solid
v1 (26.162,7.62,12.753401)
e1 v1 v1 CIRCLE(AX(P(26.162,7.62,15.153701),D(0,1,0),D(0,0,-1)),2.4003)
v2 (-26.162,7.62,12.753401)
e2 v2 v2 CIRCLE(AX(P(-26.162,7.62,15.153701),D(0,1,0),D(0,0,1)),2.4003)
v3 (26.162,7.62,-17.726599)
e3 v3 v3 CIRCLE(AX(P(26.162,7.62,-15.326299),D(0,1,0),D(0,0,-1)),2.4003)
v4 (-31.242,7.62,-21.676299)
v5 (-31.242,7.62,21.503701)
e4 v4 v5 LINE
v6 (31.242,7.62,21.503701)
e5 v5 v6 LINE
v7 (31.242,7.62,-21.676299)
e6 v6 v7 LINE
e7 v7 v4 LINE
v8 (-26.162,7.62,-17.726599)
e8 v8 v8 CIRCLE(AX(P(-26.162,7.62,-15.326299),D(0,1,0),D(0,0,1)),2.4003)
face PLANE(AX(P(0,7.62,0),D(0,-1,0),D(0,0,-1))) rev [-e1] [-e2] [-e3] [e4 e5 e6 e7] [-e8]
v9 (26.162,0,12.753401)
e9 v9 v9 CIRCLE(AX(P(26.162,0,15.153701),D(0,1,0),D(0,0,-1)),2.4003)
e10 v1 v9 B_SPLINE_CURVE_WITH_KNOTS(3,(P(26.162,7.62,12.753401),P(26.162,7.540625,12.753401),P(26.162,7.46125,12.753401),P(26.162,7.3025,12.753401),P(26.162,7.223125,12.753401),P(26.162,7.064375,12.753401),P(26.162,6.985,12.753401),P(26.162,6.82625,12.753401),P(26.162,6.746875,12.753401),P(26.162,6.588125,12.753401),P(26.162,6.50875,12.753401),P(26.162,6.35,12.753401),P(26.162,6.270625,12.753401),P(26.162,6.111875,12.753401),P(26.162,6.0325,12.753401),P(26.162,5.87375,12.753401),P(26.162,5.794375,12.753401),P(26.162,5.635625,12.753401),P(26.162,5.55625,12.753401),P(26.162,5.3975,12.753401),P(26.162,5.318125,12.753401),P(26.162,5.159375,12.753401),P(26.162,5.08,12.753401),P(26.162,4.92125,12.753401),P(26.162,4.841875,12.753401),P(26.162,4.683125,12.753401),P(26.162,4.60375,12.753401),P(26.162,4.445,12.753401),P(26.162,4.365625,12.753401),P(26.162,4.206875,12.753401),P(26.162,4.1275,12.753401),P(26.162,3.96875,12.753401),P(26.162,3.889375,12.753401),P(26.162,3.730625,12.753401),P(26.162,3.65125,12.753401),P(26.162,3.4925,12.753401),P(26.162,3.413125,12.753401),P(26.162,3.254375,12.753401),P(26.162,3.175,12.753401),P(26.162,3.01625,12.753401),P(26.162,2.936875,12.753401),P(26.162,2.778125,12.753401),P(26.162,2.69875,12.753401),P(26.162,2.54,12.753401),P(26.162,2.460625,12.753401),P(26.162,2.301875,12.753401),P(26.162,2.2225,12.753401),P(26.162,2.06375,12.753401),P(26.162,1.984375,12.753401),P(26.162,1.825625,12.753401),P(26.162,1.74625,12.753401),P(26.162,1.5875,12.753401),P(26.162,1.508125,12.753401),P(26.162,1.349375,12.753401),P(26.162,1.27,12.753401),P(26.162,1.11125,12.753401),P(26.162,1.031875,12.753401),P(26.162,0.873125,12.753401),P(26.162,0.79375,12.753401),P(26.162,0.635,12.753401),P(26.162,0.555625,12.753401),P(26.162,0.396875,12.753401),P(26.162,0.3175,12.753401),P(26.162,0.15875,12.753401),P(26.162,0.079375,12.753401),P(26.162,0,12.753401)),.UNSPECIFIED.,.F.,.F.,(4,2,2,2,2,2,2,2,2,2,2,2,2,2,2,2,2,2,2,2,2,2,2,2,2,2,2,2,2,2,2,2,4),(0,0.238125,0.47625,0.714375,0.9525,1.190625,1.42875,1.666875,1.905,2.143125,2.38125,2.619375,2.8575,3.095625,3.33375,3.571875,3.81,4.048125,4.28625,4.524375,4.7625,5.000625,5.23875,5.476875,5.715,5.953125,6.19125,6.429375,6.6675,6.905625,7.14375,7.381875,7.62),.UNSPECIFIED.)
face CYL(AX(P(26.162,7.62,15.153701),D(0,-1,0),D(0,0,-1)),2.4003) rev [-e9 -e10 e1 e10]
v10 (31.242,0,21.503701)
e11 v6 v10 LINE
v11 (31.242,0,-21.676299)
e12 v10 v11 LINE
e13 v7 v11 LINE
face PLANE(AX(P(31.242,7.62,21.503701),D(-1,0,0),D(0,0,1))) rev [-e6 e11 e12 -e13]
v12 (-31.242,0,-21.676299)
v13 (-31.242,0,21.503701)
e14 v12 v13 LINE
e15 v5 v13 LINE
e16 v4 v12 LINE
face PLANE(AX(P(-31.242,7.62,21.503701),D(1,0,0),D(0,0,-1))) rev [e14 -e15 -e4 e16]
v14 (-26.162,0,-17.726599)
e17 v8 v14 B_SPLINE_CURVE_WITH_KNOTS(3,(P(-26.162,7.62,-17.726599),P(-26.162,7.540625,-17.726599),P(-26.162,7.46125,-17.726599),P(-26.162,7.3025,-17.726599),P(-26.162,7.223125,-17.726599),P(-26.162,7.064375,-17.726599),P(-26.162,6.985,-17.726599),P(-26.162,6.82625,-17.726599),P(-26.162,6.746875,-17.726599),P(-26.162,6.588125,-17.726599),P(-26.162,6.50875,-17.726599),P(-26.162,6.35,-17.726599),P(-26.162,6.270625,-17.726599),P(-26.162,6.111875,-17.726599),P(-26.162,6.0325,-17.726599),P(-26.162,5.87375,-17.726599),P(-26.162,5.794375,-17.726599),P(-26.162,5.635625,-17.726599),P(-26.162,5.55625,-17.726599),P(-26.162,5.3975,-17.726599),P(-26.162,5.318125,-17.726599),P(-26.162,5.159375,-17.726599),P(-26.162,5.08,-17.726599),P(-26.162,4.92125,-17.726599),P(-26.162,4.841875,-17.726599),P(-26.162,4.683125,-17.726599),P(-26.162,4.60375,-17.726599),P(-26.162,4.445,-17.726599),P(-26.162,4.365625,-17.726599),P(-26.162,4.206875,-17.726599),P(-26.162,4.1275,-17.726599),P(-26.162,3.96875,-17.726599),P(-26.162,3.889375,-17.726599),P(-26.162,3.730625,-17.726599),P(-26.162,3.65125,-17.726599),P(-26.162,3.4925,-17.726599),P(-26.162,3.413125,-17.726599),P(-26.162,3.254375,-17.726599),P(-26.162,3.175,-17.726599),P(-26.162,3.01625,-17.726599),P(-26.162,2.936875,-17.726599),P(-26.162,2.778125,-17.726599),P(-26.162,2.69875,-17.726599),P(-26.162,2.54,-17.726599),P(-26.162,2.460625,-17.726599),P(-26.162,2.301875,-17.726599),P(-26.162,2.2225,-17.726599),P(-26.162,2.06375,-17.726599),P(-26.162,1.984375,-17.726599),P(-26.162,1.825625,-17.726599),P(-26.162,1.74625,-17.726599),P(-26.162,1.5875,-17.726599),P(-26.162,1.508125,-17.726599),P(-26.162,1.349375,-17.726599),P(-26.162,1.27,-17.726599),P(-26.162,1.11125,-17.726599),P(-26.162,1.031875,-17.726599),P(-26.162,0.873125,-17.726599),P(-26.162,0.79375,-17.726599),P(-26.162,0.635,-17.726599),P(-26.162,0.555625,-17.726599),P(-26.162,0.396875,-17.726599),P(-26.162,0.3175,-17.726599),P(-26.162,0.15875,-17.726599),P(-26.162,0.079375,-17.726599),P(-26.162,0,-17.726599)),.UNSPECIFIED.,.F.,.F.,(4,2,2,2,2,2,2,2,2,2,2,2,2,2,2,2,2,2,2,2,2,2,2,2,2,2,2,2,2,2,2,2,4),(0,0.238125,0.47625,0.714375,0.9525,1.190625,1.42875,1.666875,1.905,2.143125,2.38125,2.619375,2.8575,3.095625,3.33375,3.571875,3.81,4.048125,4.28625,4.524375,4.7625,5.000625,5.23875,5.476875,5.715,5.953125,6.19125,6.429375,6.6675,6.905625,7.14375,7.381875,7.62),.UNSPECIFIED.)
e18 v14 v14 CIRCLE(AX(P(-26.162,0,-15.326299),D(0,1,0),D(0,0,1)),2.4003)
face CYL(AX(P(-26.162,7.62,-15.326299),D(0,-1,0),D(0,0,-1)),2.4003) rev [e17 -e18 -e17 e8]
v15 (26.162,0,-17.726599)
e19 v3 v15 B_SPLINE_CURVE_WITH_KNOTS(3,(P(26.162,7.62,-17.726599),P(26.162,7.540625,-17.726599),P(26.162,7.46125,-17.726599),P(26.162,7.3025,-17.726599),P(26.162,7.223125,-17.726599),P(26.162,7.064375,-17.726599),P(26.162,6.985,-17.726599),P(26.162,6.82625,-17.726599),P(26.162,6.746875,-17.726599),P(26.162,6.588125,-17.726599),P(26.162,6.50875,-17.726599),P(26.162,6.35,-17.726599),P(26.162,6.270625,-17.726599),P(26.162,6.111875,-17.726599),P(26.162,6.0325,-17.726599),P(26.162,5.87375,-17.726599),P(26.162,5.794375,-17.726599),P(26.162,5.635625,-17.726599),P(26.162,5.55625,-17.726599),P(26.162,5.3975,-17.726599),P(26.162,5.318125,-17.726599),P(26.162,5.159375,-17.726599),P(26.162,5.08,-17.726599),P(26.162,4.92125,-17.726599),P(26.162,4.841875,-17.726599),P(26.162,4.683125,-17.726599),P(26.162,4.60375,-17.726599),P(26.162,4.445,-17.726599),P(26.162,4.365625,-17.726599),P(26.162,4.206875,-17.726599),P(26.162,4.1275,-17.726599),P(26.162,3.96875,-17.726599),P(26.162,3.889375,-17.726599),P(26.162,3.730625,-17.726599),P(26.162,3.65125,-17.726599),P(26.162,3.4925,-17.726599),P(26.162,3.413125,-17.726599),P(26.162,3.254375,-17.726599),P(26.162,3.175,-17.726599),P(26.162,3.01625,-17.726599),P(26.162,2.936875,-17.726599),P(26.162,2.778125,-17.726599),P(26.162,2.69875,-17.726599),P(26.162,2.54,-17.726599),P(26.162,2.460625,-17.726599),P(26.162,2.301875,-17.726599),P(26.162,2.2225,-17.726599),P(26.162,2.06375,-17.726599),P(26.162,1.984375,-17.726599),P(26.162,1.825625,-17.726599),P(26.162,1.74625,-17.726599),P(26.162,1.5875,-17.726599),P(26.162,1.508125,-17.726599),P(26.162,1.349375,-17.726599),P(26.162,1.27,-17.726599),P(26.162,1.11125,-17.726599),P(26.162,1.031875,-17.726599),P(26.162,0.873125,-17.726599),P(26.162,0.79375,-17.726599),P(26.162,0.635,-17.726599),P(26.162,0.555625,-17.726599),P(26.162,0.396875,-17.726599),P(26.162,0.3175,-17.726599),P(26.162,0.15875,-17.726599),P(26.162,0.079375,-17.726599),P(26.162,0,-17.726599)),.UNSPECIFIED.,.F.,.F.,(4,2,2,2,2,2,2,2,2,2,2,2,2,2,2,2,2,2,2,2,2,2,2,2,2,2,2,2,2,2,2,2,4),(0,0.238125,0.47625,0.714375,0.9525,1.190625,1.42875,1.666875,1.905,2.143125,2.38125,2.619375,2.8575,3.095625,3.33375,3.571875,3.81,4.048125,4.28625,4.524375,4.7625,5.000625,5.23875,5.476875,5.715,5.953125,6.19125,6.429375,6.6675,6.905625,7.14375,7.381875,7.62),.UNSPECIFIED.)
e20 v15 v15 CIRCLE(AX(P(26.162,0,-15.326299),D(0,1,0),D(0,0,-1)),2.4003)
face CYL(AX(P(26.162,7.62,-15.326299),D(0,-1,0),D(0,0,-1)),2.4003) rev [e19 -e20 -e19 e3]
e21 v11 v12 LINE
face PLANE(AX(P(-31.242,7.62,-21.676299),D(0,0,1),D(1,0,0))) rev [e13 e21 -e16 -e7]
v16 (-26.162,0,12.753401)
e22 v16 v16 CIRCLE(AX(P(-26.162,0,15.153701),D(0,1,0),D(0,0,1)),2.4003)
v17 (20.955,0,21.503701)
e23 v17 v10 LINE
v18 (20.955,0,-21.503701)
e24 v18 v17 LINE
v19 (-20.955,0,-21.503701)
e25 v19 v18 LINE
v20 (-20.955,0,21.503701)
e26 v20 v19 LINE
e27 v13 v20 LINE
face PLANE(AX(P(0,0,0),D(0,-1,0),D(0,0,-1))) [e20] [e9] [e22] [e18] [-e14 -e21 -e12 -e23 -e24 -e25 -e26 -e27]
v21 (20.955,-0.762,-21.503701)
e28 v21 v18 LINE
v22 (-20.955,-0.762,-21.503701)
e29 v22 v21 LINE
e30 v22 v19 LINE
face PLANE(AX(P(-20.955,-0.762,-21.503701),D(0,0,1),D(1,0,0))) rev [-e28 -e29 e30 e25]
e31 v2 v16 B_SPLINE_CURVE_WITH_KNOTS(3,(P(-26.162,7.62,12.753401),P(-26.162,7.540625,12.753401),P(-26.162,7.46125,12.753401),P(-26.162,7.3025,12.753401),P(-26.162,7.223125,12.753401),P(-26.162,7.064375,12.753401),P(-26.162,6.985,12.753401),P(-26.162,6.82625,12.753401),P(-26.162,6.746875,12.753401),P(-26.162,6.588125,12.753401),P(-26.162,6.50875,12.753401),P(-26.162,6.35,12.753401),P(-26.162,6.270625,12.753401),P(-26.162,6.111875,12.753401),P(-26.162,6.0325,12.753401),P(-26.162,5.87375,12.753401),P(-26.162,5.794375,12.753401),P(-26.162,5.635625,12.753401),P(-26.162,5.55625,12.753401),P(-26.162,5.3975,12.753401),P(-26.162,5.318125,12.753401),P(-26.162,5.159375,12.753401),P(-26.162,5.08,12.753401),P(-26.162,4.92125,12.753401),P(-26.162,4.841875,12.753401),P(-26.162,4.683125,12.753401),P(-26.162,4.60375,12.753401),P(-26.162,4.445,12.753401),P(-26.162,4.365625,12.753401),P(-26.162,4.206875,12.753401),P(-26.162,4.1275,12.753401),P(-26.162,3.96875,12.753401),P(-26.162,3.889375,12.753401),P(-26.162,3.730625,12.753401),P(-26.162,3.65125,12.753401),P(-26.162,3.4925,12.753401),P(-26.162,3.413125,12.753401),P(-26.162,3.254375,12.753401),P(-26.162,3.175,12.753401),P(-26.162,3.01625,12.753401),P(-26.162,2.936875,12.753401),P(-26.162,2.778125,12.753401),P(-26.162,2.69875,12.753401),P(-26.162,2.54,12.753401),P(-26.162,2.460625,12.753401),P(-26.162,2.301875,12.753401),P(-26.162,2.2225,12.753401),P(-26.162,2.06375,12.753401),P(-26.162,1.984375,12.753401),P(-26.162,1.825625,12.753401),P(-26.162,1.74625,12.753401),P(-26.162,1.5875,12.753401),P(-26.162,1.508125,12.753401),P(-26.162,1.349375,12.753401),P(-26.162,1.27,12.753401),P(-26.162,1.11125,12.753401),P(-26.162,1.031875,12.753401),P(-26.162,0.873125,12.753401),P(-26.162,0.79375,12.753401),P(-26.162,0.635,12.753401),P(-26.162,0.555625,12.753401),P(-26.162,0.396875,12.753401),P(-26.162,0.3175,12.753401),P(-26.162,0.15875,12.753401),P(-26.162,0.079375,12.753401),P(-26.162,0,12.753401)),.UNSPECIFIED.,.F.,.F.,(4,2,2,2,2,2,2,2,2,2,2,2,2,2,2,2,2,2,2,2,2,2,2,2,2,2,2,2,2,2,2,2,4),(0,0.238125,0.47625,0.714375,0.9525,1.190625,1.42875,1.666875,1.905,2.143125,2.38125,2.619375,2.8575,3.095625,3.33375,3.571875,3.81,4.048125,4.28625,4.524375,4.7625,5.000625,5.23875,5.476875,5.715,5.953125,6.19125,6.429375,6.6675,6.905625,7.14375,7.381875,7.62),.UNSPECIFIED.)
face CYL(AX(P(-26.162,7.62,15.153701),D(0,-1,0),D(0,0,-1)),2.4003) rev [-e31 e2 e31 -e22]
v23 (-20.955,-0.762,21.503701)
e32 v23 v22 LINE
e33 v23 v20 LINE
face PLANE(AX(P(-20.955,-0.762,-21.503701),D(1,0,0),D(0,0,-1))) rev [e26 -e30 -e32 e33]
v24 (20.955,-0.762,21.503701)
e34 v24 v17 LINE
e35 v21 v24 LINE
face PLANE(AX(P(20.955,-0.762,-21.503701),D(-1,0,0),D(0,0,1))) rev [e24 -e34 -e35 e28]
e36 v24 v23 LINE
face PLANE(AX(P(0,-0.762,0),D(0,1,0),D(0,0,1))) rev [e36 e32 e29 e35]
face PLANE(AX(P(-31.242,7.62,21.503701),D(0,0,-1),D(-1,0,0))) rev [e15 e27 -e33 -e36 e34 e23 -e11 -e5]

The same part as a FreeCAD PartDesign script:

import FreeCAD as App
import Part
import Sketcher

V = App.Vector
Q = App.Units.Quantity


def add_polygon(sketch, points):
    """Adds a closed chain of lines whose ends are joined by coincident constraints."""
    first, n = sketch.GeometryCount, len(points)
    for a, b in zip(points, points[1:] + points[:1]):
        sketch.addGeometry(Part.LineSegment(App.Vector(*a, 0), App.Vector(*b, 0)), False)
    for i in range(n):
        sketch.addConstraint(Sketcher.Constraint("Coincident", first + i, 2, first + (i + 1) % n, 1))

doc = App.newDocument("Part")
body = doc.addObject("PartDesign::Body", "Body")

# Sketch on XZ plane
sketch1 = body.newObject("Sketcher::SketchObject", "Sketch")
sketch1.AttachmentSupport = (doc.getObject("XZ_Plane"), [""])
sketch1.MapMode = "FlatFace"
add_polygon(sketch1, [(-31.2, -21.7), (-31.2, 21.5), (31.2, 21.5), (31.2, -21.7)])  # lines 0-3
sketch1.addGeometry(Part.Circle(V(-26.2, 15.2, 0), V(0, 0, 1), 2.4), False)  # 4
sketch1.addGeometry(Part.Circle(V(26.2, 15.2, 0), V(0, 0, 1), 2.4), False)  # 5
sketch1.addGeometry(Part.Circle(V(-26.2, -15.3, 0), V(0, 0, 1), 2.4), False)  # 6
sketch1.addGeometry(Part.Circle(V(26.2, -15.3, 0), V(0, 0, 1), 2.4), False)  # 7
sketch1.addConstraint([
    Sketcher.Constraint("Vertical", 0),
    Sketcher.Constraint("Horizontal", 1),
    Sketcher.Constraint("Vertical", 2),
    Sketcher.Constraint("Horizontal", 3),
    Sketcher.Constraint("Equal", 4, 5),
    Sketcher.Constraint("Equal", 5, 6),
    Sketcher.Constraint("Equal", 6, 7),
    Sketcher.Constraint("Symmetric", 4, 3, 5, 3, -2),
    Sketcher.Constraint("Symmetric", 6, 3, 7, 3, -2),
    Sketcher.Constraint("Vertical", 4, 3, 6, 3),
    Sketcher.Constraint("Diameter", 4, Q("0.189 in")),
    Sketcher.Constraint("DistanceY", 0, 1, 0, 2, Q("1.7 in")),
    Sketcher.Constraint("DistanceX", 1, 1, 1, 2, Q("2.46 in")),
    Sketcher.Constraint("DistanceY", 6, 3, 4, 3, Q("1.2 in")),
    Sketcher.Constraint("DistanceX", 0, 2, 4, 3, Q("0.2 in")),
    Sketcher.Constraint("DistanceX", 5, 3, 1, 2, Q("0.2 in")),
    Sketcher.Constraint("DistanceY", 4, 3, 0, 2, Q("0.25 in")),
    Sketcher.Constraint("DistanceY", -1, 1, 4, 3, Q("15.153701 mm")),
])
pad1 = body.newObject("PartDesign::Pad", "Pad")
pad1.Profile = sketch1
pad1.Length = Q("0.3 in")
pad1.Reversed = True

# Sketch on XZ plane
sketch2 = body.newObject("Sketcher::SketchObject", "Sketch001")
sketch2.AttachmentSupport = (doc.getObject("XZ_Plane"), [""])
sketch2.MapMode = "FlatFace"
add_polygon(sketch2, [(-21, 22), (-21, -22), (21, -22), (21, 22)])  # lines 0-3
sketch2.addConstraint([
    Sketcher.Constraint("Vertical", 0),
    Sketcher.Constraint("Horizontal", 1),
    Sketcher.Constraint("Vertical", 2),
    Sketcher.Constraint("Horizontal", 3),
    Sketcher.Constraint("Symmetric", 0, 2, 2, 2, -1, 1),
    Sketcher.Constraint("DistanceX", 1, 1, 1, 2, Q("1.65 in")),
    Sketcher.Constraint("DistanceY", 0, 2, 0, 1, Q("43.007401 mm")),
])
pad2 = body.newObject("PartDesign::Pad", "Pad001")
pad2.Profile = sketch2
pad2.Length = Q("0.03 in")

doc.recompute()
